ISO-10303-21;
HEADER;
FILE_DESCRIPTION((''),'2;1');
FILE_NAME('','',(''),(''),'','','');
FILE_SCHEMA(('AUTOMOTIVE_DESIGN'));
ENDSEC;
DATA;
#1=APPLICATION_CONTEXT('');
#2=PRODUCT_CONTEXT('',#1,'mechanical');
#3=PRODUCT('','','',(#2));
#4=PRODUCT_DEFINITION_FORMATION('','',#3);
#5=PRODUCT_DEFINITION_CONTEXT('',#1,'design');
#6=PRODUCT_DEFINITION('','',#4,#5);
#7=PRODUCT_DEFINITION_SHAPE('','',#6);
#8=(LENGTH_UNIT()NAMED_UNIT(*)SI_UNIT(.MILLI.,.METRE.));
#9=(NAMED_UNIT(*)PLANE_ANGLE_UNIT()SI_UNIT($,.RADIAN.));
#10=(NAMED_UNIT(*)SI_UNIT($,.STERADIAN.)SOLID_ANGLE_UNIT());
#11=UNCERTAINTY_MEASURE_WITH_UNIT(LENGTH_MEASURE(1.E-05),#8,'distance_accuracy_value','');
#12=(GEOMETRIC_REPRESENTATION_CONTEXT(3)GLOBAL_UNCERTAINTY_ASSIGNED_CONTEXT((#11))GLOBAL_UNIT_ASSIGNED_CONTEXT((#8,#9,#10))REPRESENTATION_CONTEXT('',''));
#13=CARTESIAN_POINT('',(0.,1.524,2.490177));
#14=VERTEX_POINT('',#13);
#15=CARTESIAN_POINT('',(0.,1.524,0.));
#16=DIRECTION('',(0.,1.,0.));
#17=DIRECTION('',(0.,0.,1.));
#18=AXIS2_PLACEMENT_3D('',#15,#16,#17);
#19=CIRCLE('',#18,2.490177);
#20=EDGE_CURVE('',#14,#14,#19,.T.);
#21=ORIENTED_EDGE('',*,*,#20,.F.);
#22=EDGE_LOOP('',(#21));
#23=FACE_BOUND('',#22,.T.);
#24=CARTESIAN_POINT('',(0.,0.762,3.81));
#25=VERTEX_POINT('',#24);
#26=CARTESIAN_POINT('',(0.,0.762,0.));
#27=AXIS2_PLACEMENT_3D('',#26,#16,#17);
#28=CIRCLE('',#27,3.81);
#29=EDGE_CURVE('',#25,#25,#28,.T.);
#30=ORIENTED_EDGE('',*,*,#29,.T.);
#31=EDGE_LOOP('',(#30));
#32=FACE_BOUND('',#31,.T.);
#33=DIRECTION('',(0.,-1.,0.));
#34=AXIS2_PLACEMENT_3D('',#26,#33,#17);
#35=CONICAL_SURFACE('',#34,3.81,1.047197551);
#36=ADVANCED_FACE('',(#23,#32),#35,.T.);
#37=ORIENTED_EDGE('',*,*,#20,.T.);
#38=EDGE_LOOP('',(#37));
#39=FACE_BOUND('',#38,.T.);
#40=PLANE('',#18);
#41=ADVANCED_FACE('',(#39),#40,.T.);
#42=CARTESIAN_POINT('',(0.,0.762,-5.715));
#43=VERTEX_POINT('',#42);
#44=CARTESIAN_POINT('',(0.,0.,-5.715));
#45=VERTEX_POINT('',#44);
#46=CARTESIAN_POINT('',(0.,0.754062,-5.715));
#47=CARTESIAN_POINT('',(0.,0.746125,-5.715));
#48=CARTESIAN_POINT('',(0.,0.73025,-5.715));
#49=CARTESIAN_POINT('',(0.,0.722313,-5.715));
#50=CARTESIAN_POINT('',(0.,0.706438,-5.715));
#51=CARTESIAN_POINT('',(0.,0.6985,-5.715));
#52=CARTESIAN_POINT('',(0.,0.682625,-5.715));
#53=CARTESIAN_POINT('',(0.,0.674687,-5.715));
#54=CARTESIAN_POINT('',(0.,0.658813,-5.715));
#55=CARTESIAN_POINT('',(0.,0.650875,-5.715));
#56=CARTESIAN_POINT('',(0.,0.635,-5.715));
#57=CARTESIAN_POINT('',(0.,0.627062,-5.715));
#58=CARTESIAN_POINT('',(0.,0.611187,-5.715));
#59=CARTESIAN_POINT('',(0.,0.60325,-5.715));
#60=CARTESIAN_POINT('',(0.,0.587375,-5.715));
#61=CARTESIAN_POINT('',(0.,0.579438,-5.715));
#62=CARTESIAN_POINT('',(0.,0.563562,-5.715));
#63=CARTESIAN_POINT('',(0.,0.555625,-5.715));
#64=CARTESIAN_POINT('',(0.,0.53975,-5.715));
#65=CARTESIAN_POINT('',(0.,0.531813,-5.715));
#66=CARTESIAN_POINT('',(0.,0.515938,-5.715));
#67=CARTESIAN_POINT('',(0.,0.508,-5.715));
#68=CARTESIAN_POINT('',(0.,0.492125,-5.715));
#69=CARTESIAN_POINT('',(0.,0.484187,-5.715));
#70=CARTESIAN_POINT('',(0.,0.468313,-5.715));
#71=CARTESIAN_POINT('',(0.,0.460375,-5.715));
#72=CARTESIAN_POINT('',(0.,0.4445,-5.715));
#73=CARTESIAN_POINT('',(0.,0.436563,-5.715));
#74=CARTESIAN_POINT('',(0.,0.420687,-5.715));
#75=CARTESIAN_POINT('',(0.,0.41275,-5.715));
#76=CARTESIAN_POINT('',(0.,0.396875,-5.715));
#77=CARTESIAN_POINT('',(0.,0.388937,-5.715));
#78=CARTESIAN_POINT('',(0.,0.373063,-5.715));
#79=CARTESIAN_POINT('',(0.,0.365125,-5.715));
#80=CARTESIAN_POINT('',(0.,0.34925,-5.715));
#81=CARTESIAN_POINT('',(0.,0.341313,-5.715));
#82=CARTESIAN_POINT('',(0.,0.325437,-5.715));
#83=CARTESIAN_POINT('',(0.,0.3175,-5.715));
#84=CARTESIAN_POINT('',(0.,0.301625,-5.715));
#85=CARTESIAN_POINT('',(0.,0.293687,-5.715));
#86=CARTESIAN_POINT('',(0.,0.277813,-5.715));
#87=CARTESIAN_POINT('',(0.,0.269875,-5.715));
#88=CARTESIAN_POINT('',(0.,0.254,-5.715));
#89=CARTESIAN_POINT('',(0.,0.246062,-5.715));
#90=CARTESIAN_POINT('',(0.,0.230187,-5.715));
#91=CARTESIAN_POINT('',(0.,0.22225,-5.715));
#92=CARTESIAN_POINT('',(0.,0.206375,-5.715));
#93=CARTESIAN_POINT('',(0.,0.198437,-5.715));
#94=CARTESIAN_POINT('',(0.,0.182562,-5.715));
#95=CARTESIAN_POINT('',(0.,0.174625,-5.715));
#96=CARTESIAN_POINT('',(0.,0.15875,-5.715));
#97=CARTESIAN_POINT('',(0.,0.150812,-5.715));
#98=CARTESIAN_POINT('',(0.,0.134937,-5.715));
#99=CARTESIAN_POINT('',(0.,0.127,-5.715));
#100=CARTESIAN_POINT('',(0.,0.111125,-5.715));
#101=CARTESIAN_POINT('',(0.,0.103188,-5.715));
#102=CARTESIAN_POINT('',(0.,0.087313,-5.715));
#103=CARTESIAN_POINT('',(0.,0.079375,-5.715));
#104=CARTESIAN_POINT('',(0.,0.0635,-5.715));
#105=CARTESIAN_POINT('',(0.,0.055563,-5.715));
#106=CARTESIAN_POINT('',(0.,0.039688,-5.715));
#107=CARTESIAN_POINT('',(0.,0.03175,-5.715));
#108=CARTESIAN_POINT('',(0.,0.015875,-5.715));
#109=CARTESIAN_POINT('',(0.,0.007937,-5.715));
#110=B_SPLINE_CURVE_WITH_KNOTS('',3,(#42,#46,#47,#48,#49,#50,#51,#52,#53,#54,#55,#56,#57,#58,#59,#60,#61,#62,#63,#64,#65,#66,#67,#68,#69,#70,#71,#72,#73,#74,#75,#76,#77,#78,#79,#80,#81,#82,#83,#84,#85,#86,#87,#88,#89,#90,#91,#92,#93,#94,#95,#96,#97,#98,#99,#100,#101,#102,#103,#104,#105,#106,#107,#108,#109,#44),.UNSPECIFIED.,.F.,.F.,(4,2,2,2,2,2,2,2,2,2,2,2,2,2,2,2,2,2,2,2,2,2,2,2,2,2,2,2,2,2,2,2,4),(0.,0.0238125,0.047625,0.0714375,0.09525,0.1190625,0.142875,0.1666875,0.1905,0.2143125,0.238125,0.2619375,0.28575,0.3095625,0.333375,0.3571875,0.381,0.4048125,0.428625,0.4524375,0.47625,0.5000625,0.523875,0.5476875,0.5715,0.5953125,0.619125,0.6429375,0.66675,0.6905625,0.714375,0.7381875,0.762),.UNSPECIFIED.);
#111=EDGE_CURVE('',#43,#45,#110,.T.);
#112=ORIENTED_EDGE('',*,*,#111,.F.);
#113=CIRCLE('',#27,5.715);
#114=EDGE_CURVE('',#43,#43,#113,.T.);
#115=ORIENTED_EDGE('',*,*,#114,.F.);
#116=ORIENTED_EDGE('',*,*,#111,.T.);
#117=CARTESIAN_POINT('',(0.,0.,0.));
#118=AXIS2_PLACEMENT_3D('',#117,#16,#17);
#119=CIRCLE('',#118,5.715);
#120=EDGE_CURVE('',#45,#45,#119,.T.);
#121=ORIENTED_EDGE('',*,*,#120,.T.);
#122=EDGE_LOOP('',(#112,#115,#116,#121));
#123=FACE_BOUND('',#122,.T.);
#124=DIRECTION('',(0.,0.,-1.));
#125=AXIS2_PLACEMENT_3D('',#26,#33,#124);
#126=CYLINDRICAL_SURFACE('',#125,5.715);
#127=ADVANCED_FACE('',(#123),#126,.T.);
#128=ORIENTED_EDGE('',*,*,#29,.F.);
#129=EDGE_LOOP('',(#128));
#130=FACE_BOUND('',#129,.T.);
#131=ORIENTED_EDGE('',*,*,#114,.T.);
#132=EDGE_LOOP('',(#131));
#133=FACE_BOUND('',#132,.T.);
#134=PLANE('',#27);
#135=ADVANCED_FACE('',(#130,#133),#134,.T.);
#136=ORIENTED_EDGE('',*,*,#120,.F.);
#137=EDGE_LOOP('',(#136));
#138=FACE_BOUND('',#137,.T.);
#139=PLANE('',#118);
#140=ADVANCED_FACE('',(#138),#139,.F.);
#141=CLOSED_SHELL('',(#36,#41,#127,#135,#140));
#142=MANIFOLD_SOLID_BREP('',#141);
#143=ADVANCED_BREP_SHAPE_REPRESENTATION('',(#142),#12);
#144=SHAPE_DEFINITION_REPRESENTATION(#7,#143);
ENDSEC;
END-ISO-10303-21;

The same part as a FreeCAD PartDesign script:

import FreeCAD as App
import Part
import Sketcher

V = App.Vector
Q = App.Units.Quantity

doc = App.newDocument("Part")
body = doc.addObject("PartDesign::Body", "Body")

# Sketch on XZ plane
sketch1 = doc.addObject("Sketcher::SketchObject", "Sketch")
body.addObject(sketch1)
sketch1.AttachmentSupport = (doc.XZ_Plane, [""])
sketch1.MapMode = "FlatFace"
sketch1.addGeometry(Part.Circle(V(0, 0, 0), V(0, 0, 1), 6), False)
sketch1.addConstraint(Sketcher.Constraint("Coincident", 0, 3, -1, 1))
sketch1.addConstraint(Sketcher.Constraint("Diameter", 0, Q("0.45 in")))
pad1 = doc.addObject("PartDesign::Pad", "Pad")
body.addObject(pad1)
pad1.Profile = sketch1
pad1.Length = Q("0.03 in")
pad1.Reversed = True

# Sketch on XZ plane
sketch2 = doc.addObject("Sketcher::SketchObject", "Sketch001")
body.addObject(sketch2)
sketch2.AttachmentSupport = (doc.XZ_Plane, [""])
sketch2.MapMode = "FlatFace"
sketch2.AttachmentOffset = App.Placement(V(0, 0, -0.03 * 25.4), App.Rotation())
sketch2.addGeometry(Part.Circle(V(0, 0, 0), V(0, 0, 1), 3.8), False)
sketch2.addConstraint(Sketcher.Constraint("Coincident", 0, 3, -1, 1))
sketch2.addConstraint(Sketcher.Constraint("Diameter", 0, Q("0.3 in")))
pad2 = doc.addObject("PartDesign::Pad", "Pad001")
body.addObject(pad2)
pad2.Profile = sketch2
pad2.Length = Q("0.03 in")
pad2.Reversed = True
pad2.TaperAngle = -60

doc.recompute()
